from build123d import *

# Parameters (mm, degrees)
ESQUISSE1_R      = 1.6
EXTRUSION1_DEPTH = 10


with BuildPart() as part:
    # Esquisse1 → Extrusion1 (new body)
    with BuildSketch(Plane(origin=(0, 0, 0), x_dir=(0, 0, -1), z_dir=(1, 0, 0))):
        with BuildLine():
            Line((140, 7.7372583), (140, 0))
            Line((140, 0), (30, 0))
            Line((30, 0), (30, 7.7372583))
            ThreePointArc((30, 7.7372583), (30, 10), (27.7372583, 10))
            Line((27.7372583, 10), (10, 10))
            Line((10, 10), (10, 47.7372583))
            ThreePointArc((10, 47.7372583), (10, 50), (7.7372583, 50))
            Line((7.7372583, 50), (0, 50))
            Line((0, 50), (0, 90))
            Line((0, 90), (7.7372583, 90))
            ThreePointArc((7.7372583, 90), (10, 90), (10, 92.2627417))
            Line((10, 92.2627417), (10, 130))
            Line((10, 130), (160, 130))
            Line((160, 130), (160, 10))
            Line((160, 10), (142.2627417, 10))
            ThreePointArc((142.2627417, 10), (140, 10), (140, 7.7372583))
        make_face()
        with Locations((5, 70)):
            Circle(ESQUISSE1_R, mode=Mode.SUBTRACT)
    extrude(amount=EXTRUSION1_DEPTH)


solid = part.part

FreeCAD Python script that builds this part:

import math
import FreeCAD as App
import Part
import Sketcher

doc = App.newDocument("Part")
body = doc.addObject("PartDesign::Body", "Body")

# Sketch on YZ plane
sketch1 = body.newObject("Sketcher::SketchObject", "Sketch")
sketch1.AttachmentSupport = (doc.getObject("YZ_Plane"), [""])
sketch1.MapMode = "FlatFace"
sketch1.addGeometry([
    Part.LineSegment(App.Vector(0, -140, 0), App.Vector(7.7, -140, 0)),  # 0
    Part.ArcOfCircle(Part.Circle(App.Vector(8.9, -141.1, 0), App.Vector(0, 0, 1), 1.6), math.radians(-45), math.radians(135)),  # 1
    Part.LineSegment(App.Vector(10, -142.3, 0), App.Vector(10, -160, 0)),  # 2
    Part.LineSegment(App.Vector(10, -160, 0), App.Vector(130, -160, 0)),  # 3
    Part.LineSegment(App.Vector(130, -160, 0), App.Vector(130, -10, 0)),  # 4
    Part.LineSegment(App.Vector(130, -10, 0), App.Vector(92.3, -10, 0)),  # 5
    Part.ArcOfCircle(Part.Circle(App.Vector(91.1, -8.9, 0), App.Vector(0, 0, 1), 1.6), math.radians(135), math.radians(315)),  # 6
    Part.LineSegment(App.Vector(90, -7.7, 0), App.Vector(90, 0, 0)),  # 7
    Part.LineSegment(App.Vector(90, 0, 0), App.Vector(50, 0, 0)),  # 8
    Part.LineSegment(App.Vector(50, 0, 0), App.Vector(50, -7.7, 0)),  # 9
    Part.ArcOfCircle(Part.Circle(App.Vector(48.9, -8.9, 0), App.Vector(0, 0, 1), 1.6), math.radians(-135), math.radians(45)),  # 10
    Part.LineSegment(App.Vector(47.7, -10, 0), App.Vector(10, -10, 0)),  # 11
    Part.LineSegment(App.Vector(10, -10, 0), App.Vector(10, -27.7, 0)),  # 12
    Part.ArcOfCircle(Part.Circle(App.Vector(8.9, -28.9, 0), App.Vector(0, 0, 1), 1.6), math.radians(-135), math.radians(45)),  # 13
    Part.LineSegment(App.Vector(7.7, -30, 0), App.Vector(0, -30, 0)),  # 14
    Part.LineSegment(App.Vector(0, -30, 0), App.Vector(0, -140, 0)),  # 15
    Part.Circle(App.Vector(70, -5, 0), App.Vector(0, 0, 1), 1.6),  # 16
], False)
sketch1.addConstraint([
    Sketcher.Constraint("Coincident", 0, 2, 1, 2),
    Sketcher.Constraint("Coincident", 1, 1, 2, 1),
    Sketcher.Constraint("Coincident", 2, 2, 3, 1),
    Sketcher.Constraint("Coincident", 3, 2, 4, 1),
    Sketcher.Constraint("Coincident", 4, 2, 5, 1),
    Sketcher.Constraint("Coincident", 5, 2, 6, 2),
    Sketcher.Constraint("Coincident", 6, 1, 7, 1),
    Sketcher.Constraint("Coincident", 7, 2, 8, 1),
    Sketcher.Constraint("Coincident", 8, 2, 9, 1),
    Sketcher.Constraint("Coincident", 9, 2, 10, 2),
    Sketcher.Constraint("Coincident", 10, 1, 11, 1),
    Sketcher.Constraint("Coincident", 11, 2, 12, 1),
    Sketcher.Constraint("Coincident", 12, 2, 13, 2),
    Sketcher.Constraint("Coincident", 13, 1, 14, 1),
    Sketcher.Constraint("Coincident", 14, 2, 15, 1),
    Sketcher.Constraint("Coincident", 15, 2, 0, 1),
    Sketcher.Constraint("Horizontal", 0),
    Sketcher.Constraint("Vertical", 2),
    Sketcher.Constraint("Horizontal", 3),
    Sketcher.Constraint("Vertical", 4),
    Sketcher.Constraint("Horizontal", 5),
    Sketcher.Constraint("Vertical", 7),
    Sketcher.Constraint("Horizontal", 8),
    Sketcher.Constraint("Vertical", 9),
    Sketcher.Constraint("Horizontal", 11),
    Sketcher.Constraint("Vertical", 12),
    Sketcher.Constraint("Horizontal", 14),
    Sketcher.Constraint("Vertical", 15),
    Sketcher.Constraint("Equal", 1, 6),
    Sketcher.Constraint("Equal", 6, 10),
    Sketcher.Constraint("Equal", 10, 13),
    Sketcher.Constraint("Equal", 13, 16),
    Sketcher.Constraint("PointOnObject", 7, 2, -1),
    Sketcher.Constraint("PointOnObject", 14, 2, -2),
    Sketcher.Constraint("Horizontal", 6, 3, 10, 3),
    Sketcher.Constraint("Horizontal", 6, 1, 9, 2),
    Sketcher.Constraint("Horizontal", 5, 2, 10, 1),
    Sketcher.Constraint("Vertical", 1, 3, 13, 3),
    Sketcher.Constraint("Vertical", 2, 2, 11, 2),
    Sketcher.Constraint("Vertical", 0, 2, 13, 1),
    Sketcher.Constraint("Equal", 5, 11),
    Sketcher.Constraint("Equal", 14, 7),
    Sketcher.Constraint("Equal", 2, 12),
    Sketcher.Constraint("Diameter", 16, 3.2),
    Sketcher.Constraint("DistanceX", 3, 1, 3, 2, 120.0),
    Sketcher.Constraint("DistanceX", 8, 2, 8, 1, 40.0),
    Sketcher.Constraint("DistanceY", 4, 1, 4, 2, 150.0),
    Sketcher.Constraint("DistanceY", 15, 2, 15, 1, 110.0),
    Sketcher.Constraint("DistanceX", -1, 1, 16, 3, 70.0),
    Sketcher.Constraint("DistanceY", 16, 3, -1, 1, 5.0),
    Sketcher.Constraint("DistanceY", 0, 2, -1, 1, 140.0),
    Sketcher.Constraint("DistanceX", -1, 1, 1, 1, 10.0),
    Sketcher.Constraint("DistanceX", 1, 3, 10, 3, 40.0),
    Sketcher.Constraint("DistanceY", 13, 3, 10, 3, 20.0),
    Sketcher.Constraint("DistanceX", -1, 1, 1, 3, 8.868629),
])
pad1 = body.newObject("PartDesign::Pad", "Pad")
pad1.Profile = sketch1
pad1.Length = 10

doc.recompute()
